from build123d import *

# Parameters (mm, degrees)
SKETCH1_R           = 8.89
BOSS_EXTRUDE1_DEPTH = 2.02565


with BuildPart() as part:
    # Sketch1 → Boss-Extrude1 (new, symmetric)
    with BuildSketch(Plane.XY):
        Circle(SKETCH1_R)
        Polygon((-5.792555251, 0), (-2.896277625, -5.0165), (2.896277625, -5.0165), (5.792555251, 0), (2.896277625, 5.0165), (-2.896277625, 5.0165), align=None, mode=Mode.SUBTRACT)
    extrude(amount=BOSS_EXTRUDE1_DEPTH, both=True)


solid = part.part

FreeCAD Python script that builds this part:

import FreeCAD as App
import Part
import Sketcher

V = App.Vector
Q = App.Units.Quantity

doc = App.newDocument("Part")
body = doc.addObject("PartDesign::Body", "Body")

sketch1 = body.newObject("Sketcher::SketchObject", "Sketch")
sketch1.AttachmentSupport = (doc.getObject("XY_Plane"), [""])
sketch1.MapMode = "FlatFace"
sketch1.addGeometry(Part.Circle(V(0, 0, 0), V(0, 0, 1), 8.89), False)
sketch1.addGeometry(Part.LineSegment(V(-2.896278, -5.0165, 0), V(-5.792555, 0, 0)), False)
sketch1.addGeometry(Part.LineSegment(V(-5.792555, 0, 0), V(-2.896278, 5.0165, 0)), False)
sketch1.addGeometry(Part.LineSegment(V(-2.896278, 5.0165, 0), V(2.896278, 5.0165, 0)), False)
sketch1.addGeometry(Part.LineSegment(V(2.896278, 5.0165, 0), V(5.792555, 0, 0)), False)
sketch1.addGeometry(Part.LineSegment(V(5.792555, 0, 0), V(2.896278, -5.0165, 0)), False)
sketch1.addGeometry(Part.LineSegment(V(2.896278, -5.0165, 0), V(-2.896278, -5.0165, 0)), False)
sketch1.addConstraint(Sketcher.Constraint("Coincident", 1, 2, 2, 1))
sketch1.addConstraint(Sketcher.Constraint("Coincident", 2, 2, 3, 1))
sketch1.addConstraint(Sketcher.Constraint("Coincident", 3, 2, 4, 1))
sketch1.addConstraint(Sketcher.Constraint("Coincident", 4, 2, 5, 1))
sketch1.addConstraint(Sketcher.Constraint("Coincident", 5, 2, 6, 1))
sketch1.addConstraint(Sketcher.Constraint("Coincident", 6, 2, 1, 1))
sketch1.addConstraint(Sketcher.Constraint("Horizontal", 3))
sketch1.addConstraint(Sketcher.Constraint("Horizontal", 6))
sketch1.addConstraint(Sketcher.Constraint("Coincident", 0, 3, -1, 1))
sketch1.addConstraint(Sketcher.Constraint("Symmetric", 1, 2, 4, 2, -1, 1))
sketch1.addConstraint(Sketcher.Constraint("Symmetric", 2, 2, 5, 2, -1, 1))
sketch1.addConstraint(Sketcher.Constraint("PointOnObject", 1, 2, -1))
sketch1.addConstraint(Sketcher.Constraint("Parallel", 1, 4))
sketch1.addConstraint(Sketcher.Constraint("Vertical", 3, 2, 5, 2))
sketch1.addConstraint(Sketcher.Constraint("Diameter", 0, Q("0.7 in")))
sketch1.addConstraint(Sketcher.Constraint("Angle", 1, Q("120 deg")))
sketch1.addConstraint(Sketcher.Constraint("DistanceY", 5, 2, 3, 2, Q("0.395 in")))
sketch1.addConstraint(Sketcher.Constraint("DistanceX", 3, 1, 3, 2, Q("5.792555 mm")))
pad1 = body.newObject("PartDesign::Pad", "Pad")
pad1.Profile = sketch1
pad1.Length = Q("0.1595 in")
pad1.Midplane = True

doc.recompute()
